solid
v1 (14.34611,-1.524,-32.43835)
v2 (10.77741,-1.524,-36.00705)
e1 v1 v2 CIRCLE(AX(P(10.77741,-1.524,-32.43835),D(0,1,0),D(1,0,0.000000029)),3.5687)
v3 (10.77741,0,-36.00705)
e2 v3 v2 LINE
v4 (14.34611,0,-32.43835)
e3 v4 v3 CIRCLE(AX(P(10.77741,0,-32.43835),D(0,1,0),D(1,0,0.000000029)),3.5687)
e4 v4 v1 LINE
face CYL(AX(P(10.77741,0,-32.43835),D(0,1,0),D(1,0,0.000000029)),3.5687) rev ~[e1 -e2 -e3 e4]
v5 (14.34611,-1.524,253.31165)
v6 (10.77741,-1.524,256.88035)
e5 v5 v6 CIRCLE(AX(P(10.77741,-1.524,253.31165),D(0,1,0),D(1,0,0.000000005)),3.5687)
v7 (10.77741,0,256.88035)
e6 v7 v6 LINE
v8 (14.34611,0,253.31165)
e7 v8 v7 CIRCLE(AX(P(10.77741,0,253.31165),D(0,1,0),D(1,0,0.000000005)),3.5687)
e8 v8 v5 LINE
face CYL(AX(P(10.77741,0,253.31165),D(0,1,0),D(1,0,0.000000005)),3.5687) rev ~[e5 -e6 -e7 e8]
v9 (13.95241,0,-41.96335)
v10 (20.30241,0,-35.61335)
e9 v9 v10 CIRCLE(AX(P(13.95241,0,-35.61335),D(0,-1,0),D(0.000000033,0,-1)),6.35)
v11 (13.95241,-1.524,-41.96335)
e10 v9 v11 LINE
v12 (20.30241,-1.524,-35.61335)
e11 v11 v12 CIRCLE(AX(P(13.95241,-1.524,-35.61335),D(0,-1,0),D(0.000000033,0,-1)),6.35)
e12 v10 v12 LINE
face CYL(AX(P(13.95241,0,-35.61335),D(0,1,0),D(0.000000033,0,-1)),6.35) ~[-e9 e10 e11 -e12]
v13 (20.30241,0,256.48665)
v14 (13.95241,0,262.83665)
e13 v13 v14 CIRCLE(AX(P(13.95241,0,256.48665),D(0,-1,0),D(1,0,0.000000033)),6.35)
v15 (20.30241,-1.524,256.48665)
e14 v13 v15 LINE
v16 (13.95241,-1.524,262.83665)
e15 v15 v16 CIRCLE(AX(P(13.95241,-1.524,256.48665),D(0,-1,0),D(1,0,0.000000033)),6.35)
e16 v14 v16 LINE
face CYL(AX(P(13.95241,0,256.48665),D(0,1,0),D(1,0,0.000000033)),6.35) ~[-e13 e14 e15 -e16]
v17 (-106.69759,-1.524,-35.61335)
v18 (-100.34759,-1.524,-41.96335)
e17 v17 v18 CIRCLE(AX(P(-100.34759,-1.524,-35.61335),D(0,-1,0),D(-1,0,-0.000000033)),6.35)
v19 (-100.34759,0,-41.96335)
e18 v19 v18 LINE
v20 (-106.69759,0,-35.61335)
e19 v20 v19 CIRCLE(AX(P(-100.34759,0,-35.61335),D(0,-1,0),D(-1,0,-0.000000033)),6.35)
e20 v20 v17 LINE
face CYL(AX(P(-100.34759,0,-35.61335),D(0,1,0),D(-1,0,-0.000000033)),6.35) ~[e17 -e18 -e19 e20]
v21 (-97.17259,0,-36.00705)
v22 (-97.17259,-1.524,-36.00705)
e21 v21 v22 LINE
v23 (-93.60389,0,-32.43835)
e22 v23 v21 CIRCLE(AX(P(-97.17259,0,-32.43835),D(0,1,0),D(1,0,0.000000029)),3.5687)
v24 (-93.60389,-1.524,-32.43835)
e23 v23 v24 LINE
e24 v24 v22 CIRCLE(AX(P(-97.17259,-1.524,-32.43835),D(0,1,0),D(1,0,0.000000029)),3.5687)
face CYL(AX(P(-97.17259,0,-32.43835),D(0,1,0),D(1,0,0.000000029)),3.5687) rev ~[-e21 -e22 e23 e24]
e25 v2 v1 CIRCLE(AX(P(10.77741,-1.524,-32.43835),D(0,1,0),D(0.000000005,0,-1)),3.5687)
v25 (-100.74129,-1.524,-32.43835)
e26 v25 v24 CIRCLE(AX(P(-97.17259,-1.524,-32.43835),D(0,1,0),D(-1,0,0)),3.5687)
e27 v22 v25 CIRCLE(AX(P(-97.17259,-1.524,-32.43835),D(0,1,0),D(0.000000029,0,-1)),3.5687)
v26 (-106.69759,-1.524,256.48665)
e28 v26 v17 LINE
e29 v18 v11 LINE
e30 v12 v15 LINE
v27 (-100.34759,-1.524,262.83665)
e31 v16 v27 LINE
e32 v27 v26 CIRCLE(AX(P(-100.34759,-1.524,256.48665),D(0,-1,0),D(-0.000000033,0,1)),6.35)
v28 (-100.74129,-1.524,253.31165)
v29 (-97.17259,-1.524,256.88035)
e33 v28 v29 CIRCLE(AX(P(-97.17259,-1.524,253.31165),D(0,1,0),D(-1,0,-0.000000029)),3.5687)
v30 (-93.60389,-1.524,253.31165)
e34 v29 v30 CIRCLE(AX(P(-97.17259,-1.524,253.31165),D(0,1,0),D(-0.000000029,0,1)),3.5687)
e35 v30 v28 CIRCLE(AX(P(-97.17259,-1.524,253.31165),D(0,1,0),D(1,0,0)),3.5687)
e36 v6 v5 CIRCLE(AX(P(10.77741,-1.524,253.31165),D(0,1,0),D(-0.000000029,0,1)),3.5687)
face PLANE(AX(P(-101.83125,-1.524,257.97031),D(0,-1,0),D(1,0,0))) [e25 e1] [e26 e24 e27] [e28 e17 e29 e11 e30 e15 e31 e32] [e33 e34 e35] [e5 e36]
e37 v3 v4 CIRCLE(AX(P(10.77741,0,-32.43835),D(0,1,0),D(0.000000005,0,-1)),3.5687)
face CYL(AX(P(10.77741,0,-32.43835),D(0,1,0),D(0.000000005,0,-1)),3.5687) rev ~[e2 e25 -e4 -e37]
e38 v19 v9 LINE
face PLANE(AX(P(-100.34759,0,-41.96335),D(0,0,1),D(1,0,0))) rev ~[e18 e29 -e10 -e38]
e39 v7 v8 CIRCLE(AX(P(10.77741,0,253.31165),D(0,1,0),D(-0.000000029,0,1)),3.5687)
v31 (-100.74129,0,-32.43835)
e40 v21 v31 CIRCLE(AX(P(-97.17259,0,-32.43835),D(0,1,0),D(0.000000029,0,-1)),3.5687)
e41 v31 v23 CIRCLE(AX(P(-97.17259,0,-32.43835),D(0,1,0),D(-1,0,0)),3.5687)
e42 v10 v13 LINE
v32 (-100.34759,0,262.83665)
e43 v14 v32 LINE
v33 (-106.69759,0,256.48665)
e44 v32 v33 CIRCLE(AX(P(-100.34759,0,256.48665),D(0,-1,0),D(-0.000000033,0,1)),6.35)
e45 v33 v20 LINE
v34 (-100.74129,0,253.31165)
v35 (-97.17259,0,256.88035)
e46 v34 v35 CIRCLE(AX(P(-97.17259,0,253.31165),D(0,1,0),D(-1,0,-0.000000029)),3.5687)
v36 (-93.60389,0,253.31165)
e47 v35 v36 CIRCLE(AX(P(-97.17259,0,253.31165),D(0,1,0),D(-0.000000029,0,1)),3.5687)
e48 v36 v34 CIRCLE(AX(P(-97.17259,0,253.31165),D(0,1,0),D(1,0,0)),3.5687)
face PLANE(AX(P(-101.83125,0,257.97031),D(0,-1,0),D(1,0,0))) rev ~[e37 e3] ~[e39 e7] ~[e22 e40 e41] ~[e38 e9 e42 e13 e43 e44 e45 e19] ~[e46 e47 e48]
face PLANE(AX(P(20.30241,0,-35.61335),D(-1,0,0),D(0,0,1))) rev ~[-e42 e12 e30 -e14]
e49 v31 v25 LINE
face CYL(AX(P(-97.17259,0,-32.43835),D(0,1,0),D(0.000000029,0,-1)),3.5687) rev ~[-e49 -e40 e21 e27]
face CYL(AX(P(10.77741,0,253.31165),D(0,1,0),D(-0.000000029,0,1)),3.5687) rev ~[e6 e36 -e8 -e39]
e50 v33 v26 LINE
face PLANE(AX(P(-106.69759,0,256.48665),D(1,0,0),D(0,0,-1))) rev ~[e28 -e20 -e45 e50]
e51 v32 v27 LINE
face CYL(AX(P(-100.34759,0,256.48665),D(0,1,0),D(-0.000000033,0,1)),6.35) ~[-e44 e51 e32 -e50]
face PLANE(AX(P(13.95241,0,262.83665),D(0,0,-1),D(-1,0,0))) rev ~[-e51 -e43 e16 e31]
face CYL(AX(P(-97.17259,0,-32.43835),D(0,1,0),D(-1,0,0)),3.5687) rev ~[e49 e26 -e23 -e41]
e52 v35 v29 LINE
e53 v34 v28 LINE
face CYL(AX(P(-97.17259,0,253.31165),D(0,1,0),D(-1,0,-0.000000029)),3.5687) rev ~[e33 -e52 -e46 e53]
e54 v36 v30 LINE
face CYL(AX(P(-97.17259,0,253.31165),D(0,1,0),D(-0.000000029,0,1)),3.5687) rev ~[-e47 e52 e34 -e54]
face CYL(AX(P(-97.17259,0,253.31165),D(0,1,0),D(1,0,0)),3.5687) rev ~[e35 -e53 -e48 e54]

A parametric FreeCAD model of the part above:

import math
import FreeCAD as App
import Part
import Sketcher

V = App.Vector
Q = App.Units.Quantity

doc = App.newDocument("Part")
body = doc.addObject("PartDesign::Body", "Body")

sketch1 = body.newObject("Sketcher::SketchObject", "Sketch")
sketch1.AttachmentSupport = (doc.getObject("XZ_Plane"), [""])
sketch1.MapMode = "FlatFace"
sketch1.addGeometry([
    Part.ArcOfCircle(Part.Circle(V(-100.34759, 256.48665, 0), V(0, 0, 1), 6.35), math.radians(90.000002), math.radians(179.999998)),
    Part.LineSegment(V(-106.69759, 256.48665, 0), V(-106.69759, -35.61335, 0)),
    Part.ArcOfCircle(Part.Circle(V(-100.34759, -35.61335, 0), V(0, 0, 1), 6.35), math.radians(-179.999998), math.radians(-90.000002)),
    Part.LineSegment(V(-100.34759, -41.96335, 0), V(13.95241, -41.96335, 0)),
    Part.ArcOfCircle(Part.Circle(V(13.95241, -35.61335, 0), V(0, 0, 1), 6.35), math.radians(-89.999998), math.radians(-0.000002)),
    Part.LineSegment(V(20.30241, -35.61335, 0), V(20.30241, 256.48665, 0)),
    Part.ArcOfCircle(Part.Circle(V(13.95241, 256.48665, 0), V(0, 0, 1), 6.35), math.radians(0.000002), math.radians(89.999998)),
    Part.LineSegment(V(13.95241, 262.83665, 0), V(-100.34759, 262.83665, 0)),
    Part.ArcOfCircle(Part.Circle(V(10.77741, -32.43835, 0), V(0, 0, 1), 3.5687), math.radians(0), math.radians(270)),
    Part.ArcOfCircle(Part.Circle(V(10.77741, -32.43835, 0), V(0, 0, 1), 3.5687), math.radians(-90.000002), math.radians(0.000002)),
    Part.ArcOfCircle(Part.Circle(V(-97.17259, -32.43835, 0), V(0, 0, 1), 3.5687), math.radians(0), math.radians(180)),
    Part.ArcOfCircle(Part.Circle(V(-97.17259, -32.43835, 0), V(0, 0, 1), 3.5687), math.radians(-90.000002), math.radians(0.000002)),
    Part.ArcOfCircle(Part.Circle(V(-97.17259, -32.43835, 0), V(0, 0, 1), 3.5687), math.radians(179.999998), math.radians(270.000002)),
    Part.ArcOfCircle(Part.Circle(V(10.77741, 253.31165, 0), V(0, 0, 1), 3.5687), math.radians(90), math.radians(360)),
    Part.ArcOfCircle(Part.Circle(V(10.77741, 253.31165, 0), V(0, 0, 1), 3.5687), math.radians(-0.000002), math.radians(90.000002)),
    Part.ArcOfCircle(Part.Circle(V(-97.17259, 253.31165, 0), V(0, 0, 1), 3.5687), math.radians(89.999998), math.radians(180.000002)),
    Part.ArcOfCircle(Part.Circle(V(-97.17259, 253.31165, 0), V(0, 0, 1), 3.5687), math.radians(-0.000002), math.radians(90.000002)),
    Part.ArcOfCircle(Part.Circle(V(-97.17259, 253.31165, 0), V(0, 0, 1), 3.5687), math.radians(180), math.radians(360)),
], False)
sketch1.addConstraint([
    Sketcher.Constraint("Tangent", 0, 2, 1, 1),
    Sketcher.Constraint("Tangent", 1, 2, 2, 1),
    Sketcher.Constraint("Tangent", 2, 2, 3, 1),
    Sketcher.Constraint("Tangent", 3, 2, 4, 1),
    Sketcher.Constraint("Tangent", 4, 2, 5, 1),
    Sketcher.Constraint("Tangent", 5, 2, 6, 1),
    Sketcher.Constraint("Tangent", 6, 2, 7, 1),
    Sketcher.Constraint("Tangent", 7, 2, 0, 1),
    Sketcher.Constraint("Tangent", 8, 1, 9, 2),
    Sketcher.Constraint("Coincident", 9, 1, 8, 2),
    Sketcher.Constraint("Tangent", 10, 1, 11, 2),
    Sketcher.Constraint("Tangent", 11, 1, 12, 2),
    Sketcher.Constraint("Tangent", 12, 1, 10, 2),
    Sketcher.Constraint("Tangent", 13, 1, 14, 2),
    Sketcher.Constraint("Coincident", 14, 1, 13, 2),
    Sketcher.Constraint("Tangent", 15, 1, 16, 2),
    Sketcher.Constraint("Tangent", 16, 1, 17, 2),
    Sketcher.Constraint("Tangent", 17, 1, 15, 2),
    Sketcher.Constraint("Vertical", 1),
    Sketcher.Constraint("Horizontal", 3),
    Sketcher.Constraint("Vertical", 5),
    Sketcher.Constraint("Horizontal", 7),
    Sketcher.Constraint("Equal", 0, 2),
    Sketcher.Constraint("Equal", 2, 4),
    Sketcher.Constraint("Equal", 4, 6),
    Sketcher.Constraint("Equal", 9, 10),
    Sketcher.Constraint("Equal", 12, 13),
    Sketcher.Constraint("Equal", 14, 15),
    Sketcher.Constraint("Horizontal", 9, 3, 10, 3),
    Sketcher.Constraint("Horizontal", 14, 3, 15, 3),
    Sketcher.Constraint("Horizontal", 12, 3, 8, 1),
    Sketcher.Constraint("Horizontal", 8, 1, 10, 1),
    Sketcher.Constraint("Horizontal", 10, 1, 12, 1),
    Sketcher.Constraint("Horizontal", 17, 3, 14, 1),
    Sketcher.Constraint("Horizontal", 14, 1, 16, 1),
    Sketcher.Constraint("Horizontal", 16, 1, 17, 1),
    Sketcher.Constraint("Vertical", 9, 3, 13, 3),
    Sketcher.Constraint("Vertical", 12, 3, 15, 3),
    Sketcher.Constraint("Vertical", 14, 3, 9, 1),
    Sketcher.Constraint("Vertical", 17, 3, 11, 1),
    Sketcher.Constraint("Vertical", 9, 1, 13, 1),
    Sketcher.Constraint("Vertical", 11, 1, 15, 1),
    Sketcher.Constraint("Radius", 0, Q("0.25 in")),
    Sketcher.Constraint("DistanceX", 3, 1, 3, 2, Q("4.5 in")),
    Sketcher.Constraint("DistanceY", 1, 2, 1, 1, Q("11.5 in")),
    Sketcher.Constraint("Radius", 8, Q("0.1405 in")),
    Sketcher.Constraint("DistanceX", 10, 3, 8, 3, Q("4.25 in")),
    Sketcher.Constraint("DistanceY", 8, 3, 13, 3, Q("11.25 in")),
    Sketcher.Constraint("DistanceX", 8, 3, 4, 3, Q("0.125 in")),
    Sketcher.Constraint("DistanceY", 4, 3, 8, 3, Q("0.125 in")),
    Sketcher.Constraint("DistanceX", 0, 3, -1, 1, Q("100.34759 mm")),
    Sketcher.Constraint("DistanceY", -1, 1, 0, 3, Q("256.48665 mm")),
])
pad1 = body.newObject("PartDesign::Pad", "Pad")
pad1.Profile = sketch1
pad1.Length = Q("0.06 in")

doc.recompute()
